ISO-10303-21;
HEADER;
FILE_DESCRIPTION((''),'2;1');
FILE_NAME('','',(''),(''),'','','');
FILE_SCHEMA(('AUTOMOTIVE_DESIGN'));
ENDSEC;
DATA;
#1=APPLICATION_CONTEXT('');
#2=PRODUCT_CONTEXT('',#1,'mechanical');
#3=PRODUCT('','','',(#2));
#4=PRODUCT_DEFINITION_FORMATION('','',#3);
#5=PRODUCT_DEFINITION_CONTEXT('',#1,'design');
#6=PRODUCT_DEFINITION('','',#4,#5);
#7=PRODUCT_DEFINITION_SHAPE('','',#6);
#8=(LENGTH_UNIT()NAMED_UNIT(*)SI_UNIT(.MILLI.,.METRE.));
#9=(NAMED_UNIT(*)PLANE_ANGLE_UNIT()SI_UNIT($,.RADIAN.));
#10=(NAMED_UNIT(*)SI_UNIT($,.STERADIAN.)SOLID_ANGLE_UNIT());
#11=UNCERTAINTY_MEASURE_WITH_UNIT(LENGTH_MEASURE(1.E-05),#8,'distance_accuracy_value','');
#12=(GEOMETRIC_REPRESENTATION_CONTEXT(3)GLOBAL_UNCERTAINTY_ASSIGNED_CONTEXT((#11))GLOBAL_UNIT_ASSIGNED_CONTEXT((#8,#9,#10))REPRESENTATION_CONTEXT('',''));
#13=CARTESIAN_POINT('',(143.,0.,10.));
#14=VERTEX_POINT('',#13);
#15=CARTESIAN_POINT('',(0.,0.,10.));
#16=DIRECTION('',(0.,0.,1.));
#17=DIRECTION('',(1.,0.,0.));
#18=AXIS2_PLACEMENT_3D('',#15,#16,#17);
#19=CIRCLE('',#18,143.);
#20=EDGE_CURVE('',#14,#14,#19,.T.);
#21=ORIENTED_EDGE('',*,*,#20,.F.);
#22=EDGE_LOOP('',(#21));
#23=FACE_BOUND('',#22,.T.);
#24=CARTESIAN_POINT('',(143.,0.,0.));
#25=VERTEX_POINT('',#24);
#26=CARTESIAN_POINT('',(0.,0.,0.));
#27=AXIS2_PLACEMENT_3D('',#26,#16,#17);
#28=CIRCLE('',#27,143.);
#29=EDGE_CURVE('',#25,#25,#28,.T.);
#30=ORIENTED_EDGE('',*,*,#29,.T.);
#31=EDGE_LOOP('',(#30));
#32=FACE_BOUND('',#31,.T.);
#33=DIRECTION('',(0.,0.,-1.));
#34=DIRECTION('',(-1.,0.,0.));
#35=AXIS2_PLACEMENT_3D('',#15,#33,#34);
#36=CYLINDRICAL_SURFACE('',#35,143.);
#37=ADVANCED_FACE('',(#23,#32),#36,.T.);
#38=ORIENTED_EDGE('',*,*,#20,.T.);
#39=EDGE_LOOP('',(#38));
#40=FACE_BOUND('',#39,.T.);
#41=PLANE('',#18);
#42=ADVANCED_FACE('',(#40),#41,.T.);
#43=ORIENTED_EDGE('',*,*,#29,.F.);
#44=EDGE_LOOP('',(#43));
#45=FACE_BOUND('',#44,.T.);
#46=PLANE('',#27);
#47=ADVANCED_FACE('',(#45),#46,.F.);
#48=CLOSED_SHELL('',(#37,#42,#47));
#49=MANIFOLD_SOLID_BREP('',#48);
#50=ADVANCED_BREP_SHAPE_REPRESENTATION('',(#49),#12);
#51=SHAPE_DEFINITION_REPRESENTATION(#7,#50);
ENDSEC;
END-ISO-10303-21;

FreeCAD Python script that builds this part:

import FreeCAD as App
import Part
import Sketcher

doc = App.newDocument("Part")
params = doc.addObject("Spreadsheet::Sheet", "Params")
for row, (alias, value) in enumerate([
    ("sketch1_diameter", "286 mm"),
    ("pad1_length", "10 mm"),
], start=1):
    params.set(f"A{row}", alias)
    params.set(f"B{row}", "=" + value)
    params.setAlias(f"B{row}", alias)

body = doc.addObject("PartDesign::Body", "Body")

# Sketch on XY plane
sketch1 = doc.addObject("Sketcher::SketchObject", "Sketch")
body.addObject(sketch1)
sketch1.AttachmentSupport = (doc.XY_Plane, [""])
sketch1.MapMode = "FlatFace"
sketch1.addGeometry(Part.Circle(App.Vector(0, 0, 0), App.Vector(0, 0, 1), 143), False)
sketch1.addConstraint([
    Sketcher.Constraint("Coincident", 0, 3, -1, 1),
    Sketcher.Constraint("Diameter", 0, 286.0),
])
sketch1.setExpression("Constraints[1]", "Params.sketch1_diameter")
pad1 = doc.addObject("PartDesign::Pad", "Pad")
body.addObject(pad1)
pad1.Profile = sketch1
pad1.setExpression("Length", "Params.pad1_length")

doc.recompute()
